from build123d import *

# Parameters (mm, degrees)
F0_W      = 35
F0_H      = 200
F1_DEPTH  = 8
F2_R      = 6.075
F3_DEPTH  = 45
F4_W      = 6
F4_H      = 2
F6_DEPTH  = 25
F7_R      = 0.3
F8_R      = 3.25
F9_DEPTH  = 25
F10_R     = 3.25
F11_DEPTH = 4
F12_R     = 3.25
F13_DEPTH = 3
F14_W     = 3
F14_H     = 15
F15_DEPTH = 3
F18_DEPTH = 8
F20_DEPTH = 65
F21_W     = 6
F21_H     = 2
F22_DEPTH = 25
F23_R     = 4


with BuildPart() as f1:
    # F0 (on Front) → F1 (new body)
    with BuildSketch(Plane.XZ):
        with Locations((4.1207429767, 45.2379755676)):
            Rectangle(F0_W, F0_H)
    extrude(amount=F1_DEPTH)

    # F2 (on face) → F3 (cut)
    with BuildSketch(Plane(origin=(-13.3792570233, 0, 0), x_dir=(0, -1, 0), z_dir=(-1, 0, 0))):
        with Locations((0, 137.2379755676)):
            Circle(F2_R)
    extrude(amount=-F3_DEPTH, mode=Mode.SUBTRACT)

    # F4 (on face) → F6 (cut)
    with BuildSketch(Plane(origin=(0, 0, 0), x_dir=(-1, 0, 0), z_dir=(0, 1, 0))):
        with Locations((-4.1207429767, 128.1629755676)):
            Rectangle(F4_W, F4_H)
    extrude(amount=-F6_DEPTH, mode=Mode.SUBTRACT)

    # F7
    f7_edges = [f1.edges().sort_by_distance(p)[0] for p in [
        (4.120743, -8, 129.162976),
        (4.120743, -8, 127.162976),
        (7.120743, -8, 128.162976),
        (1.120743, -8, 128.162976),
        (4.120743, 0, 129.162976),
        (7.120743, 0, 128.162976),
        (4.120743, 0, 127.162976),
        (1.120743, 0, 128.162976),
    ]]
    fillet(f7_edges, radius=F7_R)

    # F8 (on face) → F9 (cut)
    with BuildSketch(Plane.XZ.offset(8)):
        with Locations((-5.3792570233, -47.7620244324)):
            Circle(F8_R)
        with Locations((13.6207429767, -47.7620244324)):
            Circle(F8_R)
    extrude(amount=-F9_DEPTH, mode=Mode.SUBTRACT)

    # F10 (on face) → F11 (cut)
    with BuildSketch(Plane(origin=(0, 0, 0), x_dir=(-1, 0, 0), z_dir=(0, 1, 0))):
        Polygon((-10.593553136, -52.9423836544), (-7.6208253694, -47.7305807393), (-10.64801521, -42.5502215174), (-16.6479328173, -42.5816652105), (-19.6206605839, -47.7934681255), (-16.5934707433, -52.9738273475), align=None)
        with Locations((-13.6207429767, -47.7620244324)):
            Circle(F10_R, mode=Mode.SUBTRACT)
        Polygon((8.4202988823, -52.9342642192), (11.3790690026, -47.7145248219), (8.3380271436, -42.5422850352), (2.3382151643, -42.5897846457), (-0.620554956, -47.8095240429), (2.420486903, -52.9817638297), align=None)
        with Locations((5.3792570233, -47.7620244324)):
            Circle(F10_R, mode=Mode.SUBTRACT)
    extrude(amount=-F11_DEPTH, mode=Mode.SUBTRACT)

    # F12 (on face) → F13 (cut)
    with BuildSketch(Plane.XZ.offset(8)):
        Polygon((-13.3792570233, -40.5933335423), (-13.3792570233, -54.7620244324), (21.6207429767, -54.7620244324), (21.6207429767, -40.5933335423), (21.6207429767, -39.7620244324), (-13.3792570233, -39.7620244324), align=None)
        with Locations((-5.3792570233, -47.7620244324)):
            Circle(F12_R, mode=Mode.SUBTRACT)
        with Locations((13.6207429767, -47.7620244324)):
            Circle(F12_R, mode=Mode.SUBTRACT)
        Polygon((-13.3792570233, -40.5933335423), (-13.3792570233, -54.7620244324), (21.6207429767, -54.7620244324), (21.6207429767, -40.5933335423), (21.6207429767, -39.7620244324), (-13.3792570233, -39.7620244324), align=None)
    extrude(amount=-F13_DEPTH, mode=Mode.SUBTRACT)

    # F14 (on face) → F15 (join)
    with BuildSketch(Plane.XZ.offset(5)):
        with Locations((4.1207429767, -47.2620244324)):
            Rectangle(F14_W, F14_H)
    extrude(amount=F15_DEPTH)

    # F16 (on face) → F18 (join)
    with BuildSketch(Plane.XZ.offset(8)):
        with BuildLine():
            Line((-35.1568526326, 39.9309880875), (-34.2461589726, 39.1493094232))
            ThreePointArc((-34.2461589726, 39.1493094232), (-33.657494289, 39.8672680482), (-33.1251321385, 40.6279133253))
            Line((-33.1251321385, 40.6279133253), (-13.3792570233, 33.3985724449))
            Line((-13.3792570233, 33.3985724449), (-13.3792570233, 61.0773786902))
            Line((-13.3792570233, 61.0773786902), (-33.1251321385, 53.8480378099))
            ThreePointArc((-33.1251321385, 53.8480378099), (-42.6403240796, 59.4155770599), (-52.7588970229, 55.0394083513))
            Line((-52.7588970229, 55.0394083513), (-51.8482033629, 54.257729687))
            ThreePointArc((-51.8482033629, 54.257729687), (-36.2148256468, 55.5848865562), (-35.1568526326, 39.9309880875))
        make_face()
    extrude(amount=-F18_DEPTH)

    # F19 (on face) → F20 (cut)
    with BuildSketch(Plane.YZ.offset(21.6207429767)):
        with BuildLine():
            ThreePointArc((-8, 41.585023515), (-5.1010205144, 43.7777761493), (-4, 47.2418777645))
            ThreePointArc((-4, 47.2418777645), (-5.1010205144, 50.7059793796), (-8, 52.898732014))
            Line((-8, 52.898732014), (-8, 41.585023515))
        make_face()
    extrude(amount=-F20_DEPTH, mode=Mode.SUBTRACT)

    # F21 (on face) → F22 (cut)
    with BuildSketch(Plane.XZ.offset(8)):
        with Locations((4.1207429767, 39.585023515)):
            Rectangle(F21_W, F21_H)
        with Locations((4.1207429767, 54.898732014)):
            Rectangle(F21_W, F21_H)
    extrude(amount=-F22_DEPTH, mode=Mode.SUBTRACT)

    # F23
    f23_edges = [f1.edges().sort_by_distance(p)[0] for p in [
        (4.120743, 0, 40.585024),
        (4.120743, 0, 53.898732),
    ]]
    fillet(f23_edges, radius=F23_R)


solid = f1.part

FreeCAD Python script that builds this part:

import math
import FreeCAD as App
import Part
import Sketcher

V = App.Vector


def edges_at(feature, points):
    """Names of the edges that pass closest to the given points."""
    edges = feature.Shape.Edges
    near = lambda p: min(range(len(edges)), key=lambda i: edges[i].distToShape(Part.Vertex(*p))[0])
    return sorted({f"Edge{near(p) + 1}" for p in points})

doc = App.newDocument("Part")
body = doc.addObject("PartDesign::Body", "Body")

# Sketch on XZ plane
sketch1 = body.newObject("Sketcher::SketchObject", "Sketch")
sketch1.AttachmentSupport = (doc.getObject("XZ_Plane"), [""])
sketch1.MapMode = "FlatFace"
sketch1.addGeometry(Part.LineSegment(V(-13, 145, 0), V(-13, -55, 0)), False)
sketch1.addGeometry(Part.LineSegment(V(-13, -55, 0), V(22, -55, 0)), False)
sketch1.addGeometry(Part.LineSegment(V(22, -55, 0), V(22, 145, 0)), False)
sketch1.addGeometry(Part.LineSegment(V(22, 145, 0), V(-13, 145, 0)), False)
sketch1.addConstraint(Sketcher.Constraint("Coincident", 0, 2, 1, 1))
sketch1.addConstraint(Sketcher.Constraint("Coincident", 1, 2, 2, 1))
sketch1.addConstraint(Sketcher.Constraint("Coincident", 2, 2, 3, 1))
sketch1.addConstraint(Sketcher.Constraint("Coincident", 3, 2, 0, 1))
sketch1.addConstraint(Sketcher.Constraint("Vertical", 0))
sketch1.addConstraint(Sketcher.Constraint("Horizontal", 1))
sketch1.addConstraint(Sketcher.Constraint("Vertical", 2))
sketch1.addConstraint(Sketcher.Constraint("Horizontal", 3))
sketch1.addConstraint(Sketcher.Constraint("DistanceX", 1, 1, 1, 2, 35.0))
sketch1.addConstraint(Sketcher.Constraint("DistanceY", 0, 2, 0, 1, 200.0))
sketch1.addConstraint(Sketcher.Constraint("DistanceX", 0, 2, -1, 1, 13.379257))
sketch1.addConstraint(Sketcher.Constraint("DistanceY", 0, 2, -1, 1, 54.762024))
pad1 = body.newObject("PartDesign::Pad", "Pad")
pad1.Profile = sketch1
pad1.Length = 8

# Sketch on YZ plane
sketch2 = body.newObject("Sketcher::SketchObject", "Sketch001")
sketch2.AttachmentSupport = (doc.getObject("YZ_Plane"), [""])
sketch2.MapMode = "FlatFace"
sketch2.AttachmentOffset = App.Placement(V(0, 0, -13.379257), App.Rotation())
sketch2.addGeometry(Part.Circle(V(0, 137, 0), V(0, 0, 1), 6), False)
sketch2.addConstraint(Sketcher.Constraint("PointOnObject", 0, 3, -2))
sketch2.addConstraint(Sketcher.Constraint("Diameter", 0, 12.15))
sketch2.addConstraint(Sketcher.Constraint("DistanceY", -1, 1, 0, 3, 137.237976))
pocket1 = body.newObject("PartDesign::Pocket", "Pocket")
pocket1.Profile = sketch2
pocket1.Length = 45
pocket1.Reversed = True

# Sketch on XZ plane
sketch3 = body.newObject("Sketcher::SketchObject", "Sketch002")
sketch3.AttachmentSupport = (doc.getObject("XZ_Plane"), [""])
sketch3.MapMode = "FlatFace"
sketch3.addGeometry(Part.LineSegment(V(7.1, 129.2, 0), V(7.1, 127.2, 0)), False)
sketch3.addGeometry(Part.LineSegment(V(7.1, 127.2, 0), V(1.1, 127.2, 0)), False)
sketch3.addGeometry(Part.LineSegment(V(1.1, 127.2, 0), V(1.1, 129.2, 0)), False)
sketch3.addGeometry(Part.LineSegment(V(1.1, 129.2, 0), V(7.1, 129.2, 0)), False)
sketch3.addConstraint(Sketcher.Constraint("Coincident", 0, 2, 1, 1))
sketch3.addConstraint(Sketcher.Constraint("Coincident", 1, 2, 2, 1))
sketch3.addConstraint(Sketcher.Constraint("Coincident", 2, 2, 3, 1))
sketch3.addConstraint(Sketcher.Constraint("Coincident", 3, 2, 0, 1))
sketch3.addConstraint(Sketcher.Constraint("Vertical", 0))
sketch3.addConstraint(Sketcher.Constraint("Horizontal", 1))
sketch3.addConstraint(Sketcher.Constraint("Vertical", 2))
sketch3.addConstraint(Sketcher.Constraint("Horizontal", 3))
sketch3.addConstraint(Sketcher.Constraint("DistanceX", 1, 2, 1, 1, 6.0))
sketch3.addConstraint(Sketcher.Constraint("DistanceY", 0, 2, 0, 1, 2.0))
sketch3.addConstraint(Sketcher.Constraint("DistanceX", -1, 1, 0, 2, 7.120743))
sketch3.addConstraint(Sketcher.Constraint("DistanceY", -1, 1, 0, 2, 127.162976))
pocket2 = body.newObject("PartDesign::Pocket", "Pocket001")
pocket2.Profile = sketch3
pocket2.Length = 25
pocket2.Reversed = True
doc.recompute()

fillet = body.newObject("PartDesign::Fillet", "Fillet")
fillet.Base = (pocket2, edges_at(pocket2, [
    (4.121, -8, 129.163),
    (4.121, -8, 127.163),
    (7.121, -8, 128.163),
    (1.121, -8, 128.163),
    (4.121, 0, 129.163),
    (7.121, 0, 128.163),
    (4.121, 0, 127.163),
    (1.121, 0, 128.163),
]))
fillet.Radius = 0.3

# Sketch on XZ plane
sketch4 = body.newObject("Sketcher::SketchObject", "Sketch003")
sketch4.AttachmentSupport = (doc.getObject("XZ_Plane"), [""])
sketch4.MapMode = "FlatFace"
sketch4.AttachmentOffset = App.Placement(V(0, 0, 8), App.Rotation())
sketch4.addGeometry(Part.Circle(V(-5.4, -47.8, 0), V(0, 0, 1), 3.2), False)
sketch4.addGeometry(Part.Circle(V(13.6, -47.8, 0), V(0, 0, 1), 3.2), False)
sketch4.addConstraint(Sketcher.Constraint("Equal", 0, 1))
sketch4.addConstraint(Sketcher.Constraint("Horizontal", 0, 3, 1, 3))
sketch4.addConstraint(Sketcher.Constraint("Diameter", 0, 6.5))
sketch4.addConstraint(Sketcher.Constraint("DistanceX", 0, 3, 1, 3, 19.0))
sketch4.addConstraint(Sketcher.Constraint("DistanceX", 0, 3, -1, 1, 5.379257))
sketch4.addConstraint(Sketcher.Constraint("DistanceY", 0, 3, -1, 1, 47.762024))
pocket3 = body.newObject("PartDesign::Pocket", "Pocket002")
pocket3.Profile = sketch4
pocket3.Length = 25

# Sketch on XZ plane
sketch5 = body.newObject("Sketcher::SketchObject", "Sketch004")
sketch5.AttachmentSupport = (doc.getObject("XZ_Plane"), [""])
sketch5.MapMode = "FlatFace"
sketch5.addGeometry(Part.LineSegment(V(10.6, -52.9, 0), V(7.6, -47.7, 0)), False)
sketch5.addGeometry(Part.LineSegment(V(7.6, -47.7, 0), V(10.6, -42.6, 0)), False)
sketch5.addGeometry(Part.LineSegment(V(10.6, -42.6, 0), V(16.6, -42.6, 0)), False)
sketch5.addGeometry(Part.LineSegment(V(16.6, -42.6, 0), V(19.6, -47.8, 0)), False)
sketch5.addGeometry(Part.LineSegment(V(19.6, -47.8, 0), V(16.6, -53, 0)), False)
sketch5.addGeometry(Part.LineSegment(V(16.6, -53, 0), V(10.6, -52.9, 0)), False)
sketch5.addGeometry(Part.Circle(V(13.6, -47.8, 0), V(0, 0, 1), 3.2), False)
sketch5.addGeometry(Part.LineSegment(V(-8.4, -52.9, 0), V(-11.4, -47.7, 0)), False)
sketch5.addGeometry(Part.LineSegment(V(-11.4, -47.7, 0), V(-8.3, -42.5, 0)), False)
sketch5.addGeometry(Part.LineSegment(V(-8.3, -42.5, 0), V(-2.3, -42.6, 0)), False)
sketch5.addGeometry(Part.LineSegment(V(-2.3, -42.6, 0), V(0.6, -47.8, 0)), False)
sketch5.addGeometry(Part.LineSegment(V(0.6, -47.8, 0), V(-2.4, -53, 0)), False)
sketch5.addGeometry(Part.LineSegment(V(-2.4, -53, 0), V(-8.4, -52.9, 0)), False)
sketch5.addGeometry(Part.Circle(V(-5.4, -47.8, 0), V(0, 0, 1), 3.2), False)
sketch5.addConstraint(Sketcher.Constraint("Coincident", 0, 2, 1, 1))
sketch5.addConstraint(Sketcher.Constraint("Coincident", 1, 2, 2, 1))
sketch5.addConstraint(Sketcher.Constraint("Coincident", 2, 2, 3, 1))
sketch5.addConstraint(Sketcher.Constraint("Coincident", 3, 2, 4, 1))
sketch5.addConstraint(Sketcher.Constraint("Coincident", 4, 2, 5, 1))
sketch5.addConstraint(Sketcher.Constraint("Coincident", 5, 2, 0, 1))
sketch5.addConstraint(Sketcher.Constraint("Coincident", 7, 2, 8, 1))
sketch5.addConstraint(Sketcher.Constraint("Coincident", 8, 2, 9, 1))
sketch5.addConstraint(Sketcher.Constraint("Coincident", 9, 2, 10, 1))
sketch5.addConstraint(Sketcher.Constraint("Coincident", 10, 2, 11, 1))
sketch5.addConstraint(Sketcher.Constraint("Coincident", 11, 2, 12, 1))
sketch5.addConstraint(Sketcher.Constraint("Coincident", 12, 2, 7, 1))
sketch5.addConstraint(Sketcher.Constraint("Equal", 6, 13))
sketch5.addConstraint(Sketcher.Constraint("Parallel", 0, 3))
sketch5.addConstraint(Sketcher.Constraint("Parallel", 1, 4))
sketch5.addConstraint(Sketcher.Constraint("Parallel", 2, 5))
sketch5.addConstraint(Sketcher.Constraint("Parallel", 7, 10))
sketch5.addConstraint(Sketcher.Constraint("Parallel", 8, 11))
sketch5.addConstraint(Sketcher.Constraint("Parallel", 9, 12))
sketch5.addConstraint(Sketcher.Constraint("Horizontal", 6, 3, 13, 3))
sketch5.addConstraint(Sketcher.Constraint("Equal", 0, 1))
sketch5.addConstraint(Sketcher.Constraint("Equal", 1, 2))
sketch5.addConstraint(Sketcher.Constraint("Equal", 2, 3))
sketch5.addConstraint(Sketcher.Constraint("Equal", 5, 7))
sketch5.addConstraint(Sketcher.Constraint("Equal", 7, 8))
sketch5.addConstraint(Sketcher.Constraint("Equal", 8, 9))
sketch5.addConstraint(Sketcher.Constraint("Equal", 9, 10))
sketch5.addConstraint(Sketcher.Constraint("Diameter", 6, 6.5))
sketch5.addConstraint(Sketcher.Constraint("Distance", 0, 6.0))
sketch5.addConstraint(Sketcher.Constraint("DistanceX", 13, 3, 6, 3, 19.0))
sketch5.addConstraint(Sketcher.Constraint("DistanceX", 10, 2, 5, 2, 9.972998))
sketch5.addConstraint(Sketcher.Constraint("DistanceX", 12, 2, -1, 1, 8.420299))
sketch5.addConstraint(Sketcher.Constraint("DistanceY", 13, 3, 7, 2, 0.0475))
sketch5.addConstraint(Sketcher.Constraint("DistanceY", 5, 2, 8, 2, 10.400099))
sketch5.addConstraint(Sketcher.Constraint("DistanceY", 9, 2, 8, 2, 0.0475))
sketch5.addConstraint(Sketcher.Constraint("DistanceY", 10, 2, 13, 3, 0.0475))
sketch5.addConstraint(Sketcher.Constraint("DistanceY", 0, 2, -1, 1, 47.730581))
sketch5.addConstraint(Sketcher.Constraint("DistanceY", 1, 2, -1, 1, 42.550222))
sketch5.addConstraint(Sketcher.Constraint("DistanceX", -1, 1, 3, 2, 19.620661))
sketch5.addConstraint(Sketcher.Constraint("DistanceY", 3, 2, -1, 1, 47.793468))
sketch5.addConstraint(Sketcher.Constraint("DistanceX", 6, 3, 2, 2, 3.02719))
sketch5.addConstraint(Sketcher.Constraint("DistanceY", 6, 3, 2, 2, 5.180359))
pocket4 = body.newObject("PartDesign::Pocket", "Pocket003")
pocket4.Profile = sketch5
pocket4.Length = 4
pocket4.Reversed = True

# Sketch on XZ plane
sketch6 = body.newObject("Sketcher::SketchObject", "Sketch005")
sketch6.AttachmentSupport = (doc.getObject("XZ_Plane"), [""])
sketch6.MapMode = "FlatFace"
sketch6.AttachmentOffset = App.Placement(V(0, 0, 8), App.Rotation())
sketch6.addGeometry(Part.LineSegment(V(-13, -55, 0), V(22, -55, 0)), False)
sketch6.addGeometry(Part.LineSegment(V(22, -55, 0), V(22, -40, 0)), False)
sketch6.addGeometry(Part.LineSegment(V(22, -40, 0), V(-13, -40, 0)), False)
sketch6.addGeometry(Part.LineSegment(V(-13, -40, 0), V(-13, -55, 0)), False)
sketch6.addConstraint(Sketcher.Constraint("Coincident", 0, 2, 1, 1))
sketch6.addConstraint(Sketcher.Constraint("Coincident", 1, 2, 2, 1))
sketch6.addConstraint(Sketcher.Constraint("Coincident", 2, 2, 3, 1))
sketch6.addConstraint(Sketcher.Constraint("Coincident", 3, 2, 0, 1))
sketch6.addConstraint(Sketcher.Constraint("Horizontal", 0))
sketch6.addConstraint(Sketcher.Constraint("Vertical", 1))
sketch6.addConstraint(Sketcher.Constraint("Horizontal", 2))
sketch6.addConstraint(Sketcher.Constraint("Vertical", 3))
sketch6.addConstraint(Sketcher.Constraint("DistanceX", 0, 1, 0, 2, 35.0))
sketch6.addConstraint(Sketcher.Constraint("DistanceY", 1, 1, 1, 2, 15.0))
sketch6.addConstraint(Sketcher.Constraint("DistanceX", -1, 1, 0, 2, 21.620743))
sketch6.addConstraint(Sketcher.Constraint("DistanceY", 0, 2, -1, 1, 54.762024))
pocket5 = body.newObject("PartDesign::Pocket", "Pocket004")
pocket5.Profile = sketch6
pocket5.Length = 3

# Sketch on XZ plane
sketch7 = body.newObject("Sketcher::SketchObject", "Sketch006")
sketch7.AttachmentSupport = (doc.getObject("XZ_Plane"), [""])
sketch7.MapMode = "FlatFace"
sketch7.AttachmentOffset = App.Placement(V(0, 0, 5), App.Rotation())
sketch7.addGeometry(Part.LineSegment(V(2.6, -39.8, 0), V(2.6, -54.8, 0)), False)
sketch7.addGeometry(Part.LineSegment(V(2.6, -54.8, 0), V(5.6, -54.8, 0)), False)
sketch7.addGeometry(Part.LineSegment(V(5.6, -54.8, 0), V(5.6, -39.8, 0)), False)
sketch7.addGeometry(Part.LineSegment(V(5.6, -39.8, 0), V(2.6, -39.8, 0)), False)
sketch7.addConstraint(Sketcher.Constraint("Coincident", 0, 2, 1, 1))
sketch7.addConstraint(Sketcher.Constraint("Coincident", 1, 2, 2, 1))
sketch7.addConstraint(Sketcher.Constraint("Coincident", 2, 2, 3, 1))
sketch7.addConstraint(Sketcher.Constraint("Coincident", 3, 2, 0, 1))
sketch7.addConstraint(Sketcher.Constraint("Vertical", 0))
sketch7.addConstraint(Sketcher.Constraint("Horizontal", 1))
sketch7.addConstraint(Sketcher.Constraint("Vertical", 2))
sketch7.addConstraint(Sketcher.Constraint("Horizontal", 3))
sketch7.addConstraint(Sketcher.Constraint("DistanceX", 1, 1, 1, 2, 3.0))
sketch7.addConstraint(Sketcher.Constraint("DistanceY", 0, 2, 0, 1, 15.0))
sketch7.addConstraint(Sketcher.Constraint("DistanceX", -1, 1, 0, 2, 2.620743))
sketch7.addConstraint(Sketcher.Constraint("DistanceY", 0, 2, -1, 1, 54.762024))
pad2 = body.newObject("PartDesign::Pad", "Pad001")
pad2.Profile = sketch7
pad2.Length = 3

# Sketch on XZ plane
sketch8 = body.newObject("Sketcher::SketchObject", "Sketch007")
sketch8.AttachmentSupport = (doc.getObject("XZ_Plane"), [""])
sketch8.MapMode = "FlatFace"
sketch8.AttachmentOffset = App.Placement(V(0, 0, 8), App.Rotation())
sketch8.addGeometry(Part.LineSegment(V(-35.2, 39.9, 0), V(-34.2, 39.1, 0)), False)
sketch8.addGeometry(Part.ArcOfCircle(Part.Circle(V(-43.4, 47.2, 0), V(0, 0, 1), 12.2), math.radians(-41.53), math.radians(-32.81)), False)
sketch8.addGeometry(Part.LineSegment(V(-33.1, 40.6, 0), V(-13.4, 33.4, 0)), False)
sketch8.addGeometry(Part.LineSegment(V(-13.4, 33.4, 0), V(-13.4, 61.1, 0)), False)
sketch8.addGeometry(Part.LineSegment(V(-13.4, 61.1, 0), V(-33.1, 53.8, 0)), False)
sketch8.addGeometry(Part.ArcOfCircle(Part.Circle(V(-43.4, 47.2, 0), V(0, 0, 1), 12.2), math.radians(33), math.radians(140)), False)
sketch8.addGeometry(Part.LineSegment(V(-52.8, 55, 0), V(-51.8, 54.3, 0)), False)
sketch8.addGeometry(Part.ArcOfCircle(Part.Circle(V(-43.4, 47.2, 0), V(0, 0, 1), 11), math.radians(-42), math.radians(140)), False)
sketch8.addConstraint(Sketcher.Constraint("Coincident", 0, 2, 1, 1))
sketch8.addConstraint(Sketcher.Constraint("Coincident", 1, 2, 2, 1))
sketch8.addConstraint(Sketcher.Constraint("Coincident", 2, 2, 3, 1))
sketch8.addConstraint(Sketcher.Constraint("Coincident", 3, 2, 4, 1))
sketch8.addConstraint(Sketcher.Constraint("Coincident", 4, 2, 5, 1))
sketch8.addConstraint(Sketcher.Constraint("Coincident", 5, 2, 6, 1))
sketch8.addConstraint(Sketcher.Constraint("Coincident", 6, 2, 7, 2))
sketch8.addConstraint(Sketcher.Constraint("Coincident", 7, 1, 0, 1))
sketch8.addConstraint(Sketcher.Constraint("Vertical", 3))
sketch8.addConstraint(Sketcher.Constraint("Coincident", 5, 3, 1, 3))
sketch8.addConstraint(Sketcher.Constraint("Coincident", 7, 3, 1, 3))
sketch8.addConstraint(Sketcher.Constraint("Equal", 1, 5))
sketch8.addConstraint(Sketcher.Constraint("Parallel", 0, 6))
sketch8.addConstraint(Sketcher.Constraint("Vertical", 1, 2, 4, 2))
sketch8.addConstraint(Sketcher.Constraint("Equal", 2, 4))
sketch8.addConstraint(Sketcher.Constraint("Equal", 0, 6))
sketch8.addConstraint(Sketcher.Constraint("Radius", 7, 11.0))
sketch8.addConstraint(Sketcher.Constraint("Radius", 1, 12.2))
sketch8.addConstraint(Sketcher.Constraint("DistanceX", 5, 3, 2, 2, 30.0))
sketch8.addConstraint(Sketcher.Constraint("DistanceX", 5, 3, 0, 2, 9.133098))
sketch8.addConstraint(Sketcher.Constraint("Distance", 2, 21.027671))
sketch8.addConstraint(Sketcher.Constraint("DistanceY", 3, 1, 3, 2, 27.678806))
sketch8.addConstraint(Sketcher.Constraint("DistanceX", 0, 2, -1, 1, 34.246159))
sketch8.addConstraint(Sketcher.Constraint("DistanceY", -1, 1, 0, 2, 39.149309))
sketch8.addConstraint(Sketcher.Constraint("DistanceY", -1, 1, 5, 2, 55.039408))
pad3 = body.newObject("PartDesign::Pad", "Pad002")
pad3.Profile = sketch8
pad3.Length = 8
pad3.Reversed = True

# Sketch on YZ plane
sketch9 = body.newObject("Sketcher::SketchObject", "Sketch008")
sketch9.AttachmentSupport = (doc.getObject("YZ_Plane"), [""])
sketch9.MapMode = "FlatFace"
sketch9.AttachmentOffset = App.Placement(V(0, 0, 21.620743), App.Rotation())
sketch9.addGeometry(Part.ArcOfCircle(Part.Circle(V(-10, 47, 0), V(0, 0, 1), 6), math.radians(-71), math.radians(0)), False)
sketch9.addGeometry(Part.ArcOfCircle(Part.Circle(V(-10, 47, 0), V(0, 0, 1), 6), math.radians(0), math.radians(71)), False)
sketch9.addGeometry(Part.LineSegment(V(-8, 53, 0), V(-8, 42, 0)), False)
sketch9.addConstraint(Sketcher.Constraint("Tangent", 0, 2, 1, 1))
sketch9.addConstraint(Sketcher.Constraint("Coincident", 1, 2, 2, 1))
sketch9.addConstraint(Sketcher.Constraint("Coincident", 2, 2, 0, 1))
sketch9.addConstraint(Sketcher.Constraint("Vertical", 2))
sketch9.addConstraint(Sketcher.Constraint("Equal", 0, 1))
sketch9.addConstraint(Sketcher.Constraint("Horizontal", 1, 3, 0, 2))
sketch9.addConstraint(Sketcher.Constraint("Radius", 0, 6.0))
sketch9.addConstraint(Sketcher.Constraint("DistanceX", 0, 3, -1, 1, 10.0))
sketch9.addConstraint(Sketcher.Constraint("DistanceX", 1, 2, -1, 1, 8.0))
sketch9.addConstraint(Sketcher.Constraint("DistanceY", -1, 1, 0, 3, 47.241878))
pocket6 = body.newObject("PartDesign::Pocket", "Pocket005")
pocket6.Profile = sketch9
pocket6.Length = 65

# Sketch on XZ plane
sketch10 = body.newObject("Sketcher::SketchObject", "Sketch009")
sketch10.AttachmentSupport = (doc.getObject("XZ_Plane"), [""])
sketch10.MapMode = "FlatFace"
sketch10.AttachmentOffset = App.Placement(V(0, 0, 8), App.Rotation())
sketch10.addGeometry(Part.LineSegment(V(1.1, 40.6, 0), V(1.1, 38.6, 0)), False)
sketch10.addGeometry(Part.LineSegment(V(1.1, 38.6, 0), V(7.1, 38.6, 0)), False)
sketch10.addGeometry(Part.LineSegment(V(7.1, 38.6, 0), V(7.1, 40.6, 0)), False)
sketch10.addGeometry(Part.LineSegment(V(7.1, 40.6, 0), V(1.1, 40.6, 0)), False)
sketch10.addGeometry(Part.LineSegment(V(1.1, 55.9, 0), V(1.1, 53.9, 0)), False)
sketch10.addGeometry(Part.LineSegment(V(1.1, 53.9, 0), V(7.1, 53.9, 0)), False)
sketch10.addGeometry(Part.LineSegment(V(7.1, 53.9, 0), V(7.1, 55.9, 0)), False)
sketch10.addGeometry(Part.LineSegment(V(7.1, 55.9, 0), V(1.1, 55.9, 0)), False)
sketch10.addConstraint(Sketcher.Constraint("Coincident", 0, 2, 1, 1))
sketch10.addConstraint(Sketcher.Constraint("Coincident", 1, 2, 2, 1))
sketch10.addConstraint(Sketcher.Constraint("Coincident", 2, 2, 3, 1))
sketch10.addConstraint(Sketcher.Constraint("Coincident", 3, 2, 0, 1))
sketch10.addConstraint(Sketcher.Constraint("Coincident", 4, 2, 5, 1))
sketch10.addConstraint(Sketcher.Constraint("Coincident", 5, 2, 6, 1))
sketch10.addConstraint(Sketcher.Constraint("Coincident", 6, 2, 7, 1))
sketch10.addConstraint(Sketcher.Constraint("Coincident", 7, 2, 4, 1))
sketch10.addConstraint(Sketcher.Constraint("Vertical", 0))
sketch10.addConstraint(Sketcher.Constraint("Horizontal", 1))
sketch10.addConstraint(Sketcher.Constraint("Vertical", 2))
sketch10.addConstraint(Sketcher.Constraint("Horizontal", 3))
sketch10.addConstraint(Sketcher.Constraint("Vertical", 4))
sketch10.addConstraint(Sketcher.Constraint("Horizontal", 5))
sketch10.addConstraint(Sketcher.Constraint("Vertical", 6))
sketch10.addConstraint(Sketcher.Constraint("Horizontal", 7))
sketch10.addConstraint(Sketcher.Constraint("Vertical", 3, 2, 4, 2))
sketch10.addConstraint(Sketcher.Constraint("Vertical", 2, 2, 5, 2))
sketch10.addConstraint(Sketcher.Constraint("Equal", 2, 4))
sketch10.addConstraint(Sketcher.Constraint("DistanceX", 1, 1, 1, 2, 6.0))
sketch10.addConstraint(Sketcher.Constraint("DistanceY", 0, 2, 0, 1, 2.0))
sketch10.addConstraint(Sketcher.Constraint("DistanceY", 3, 2, 4, 2, 13.313708))
sketch10.addConstraint(Sketcher.Constraint("DistanceX", -1, 1, 0, 2, 1.120743))
sketch10.addConstraint(Sketcher.Constraint("DistanceY", -1, 1, 0, 2, 38.585024))
pocket7 = body.newObject("PartDesign::Pocket", "Pocket006")
pocket7.Profile = sketch10
pocket7.Length = 25
doc.recompute()

fillet2 = body.newObject("PartDesign::Fillet", "Fillet001")
fillet2.Base = (pocket7, edges_at(pocket7, [(4.121, 0, 40.585), (4.121, 0, 53.899)]))
fillet2.Radius = 4

doc.recompute()
